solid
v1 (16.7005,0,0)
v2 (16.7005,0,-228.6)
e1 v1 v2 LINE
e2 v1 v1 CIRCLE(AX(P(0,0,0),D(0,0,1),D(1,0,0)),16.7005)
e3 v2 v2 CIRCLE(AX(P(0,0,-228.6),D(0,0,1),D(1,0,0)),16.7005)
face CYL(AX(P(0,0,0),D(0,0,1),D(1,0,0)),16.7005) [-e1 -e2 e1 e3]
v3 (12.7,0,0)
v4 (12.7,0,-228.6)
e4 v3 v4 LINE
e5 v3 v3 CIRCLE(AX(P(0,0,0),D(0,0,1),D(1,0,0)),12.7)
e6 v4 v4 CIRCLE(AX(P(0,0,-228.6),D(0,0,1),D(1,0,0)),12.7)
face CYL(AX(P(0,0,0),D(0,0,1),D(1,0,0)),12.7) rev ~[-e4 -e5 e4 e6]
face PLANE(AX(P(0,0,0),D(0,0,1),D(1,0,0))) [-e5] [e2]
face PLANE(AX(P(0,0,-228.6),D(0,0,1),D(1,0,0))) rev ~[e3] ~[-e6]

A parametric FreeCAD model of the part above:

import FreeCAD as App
import Part
import Sketcher
Q = App.Units.Quantity

doc = App.newDocument("Part")
body = doc.addObject("PartDesign::Body", "Body")

# Sketch on XY plane
sketch1 = body.newObject("Sketcher::SketchObject", "Sketch")
sketch1.AttachmentSupport = (doc.getObject("XY_Plane"), [""])
sketch1.MapMode = "FlatFace"
sketch1.addGeometry(Part.Circle(App.Vector(0, 0, 0), App.Vector(0, 0, 1), 17), False)
sketch1.addGeometry(Part.Circle(App.Vector(0, 0, 0), App.Vector(0, 0, 1), 13), False)
sketch1.addConstraint(Sketcher.Constraint("Coincident", 0, 3, -1, 1))
sketch1.addConstraint(Sketcher.Constraint("Coincident", 1, 3, -1, 1))
sketch1.addConstraint(Sketcher.Constraint("Diameter", 1, Q("1 in")))
sketch1.addConstraint(Sketcher.Constraint("Diameter", 0, Q("1.315 in")))
pad1 = body.newObject("PartDesign::Pad", "Pad")
pad1.Profile = sketch1
pad1.Length = Q("9 in")
pad1.Reversed = True

doc.recompute()
